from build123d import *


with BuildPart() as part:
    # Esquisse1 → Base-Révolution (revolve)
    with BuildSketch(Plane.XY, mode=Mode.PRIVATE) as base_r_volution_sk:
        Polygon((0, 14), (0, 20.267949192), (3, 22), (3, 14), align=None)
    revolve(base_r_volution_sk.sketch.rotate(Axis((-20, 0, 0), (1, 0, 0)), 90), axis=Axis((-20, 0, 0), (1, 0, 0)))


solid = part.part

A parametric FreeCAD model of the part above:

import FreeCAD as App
import Part
import Sketcher
from FreeCAD import Vector
Q = App.Units.Quantity


def add_polygon(sketch, points):
    """Adds a closed chain of lines whose ends are joined by coincident constraints."""
    first, n = sketch.GeometryCount, len(points)
    for a, b in zip(points, points[1:] + points[:1]):
        sketch.addGeometry(Part.LineSegment(App.Vector(*a, 0), App.Vector(*b, 0)), False)
    for i in range(n):
        sketch.addConstraint(Sketcher.Constraint("Coincident", first + i, 2, first + (i + 1) % n, 1))

doc = App.newDocument("Part")
body = doc.addObject("PartDesign::Body", "Body")

# Sketch on XY plane
sketch1 = body.newObject("Sketcher::SketchObject", "Sketch")
sketch1.AttachmentSupport = (doc.getObject("XY_Plane"), [""])
sketch1.MapMode = "FlatFace"
add_polygon(sketch1, [(0, 20.3), (0, 14), (3, 14), (3, 22)])  # lines 0-3
sketch1.addConstraint([
    Sketcher.Constraint("Vertical", 0),
    Sketcher.Constraint("Horizontal", 1),
    Sketcher.Constraint("Vertical", 2),
    Sketcher.Constraint("PointOnObject", 0, 2, -2),
    Sketcher.Constraint("DistanceX", 1, 1, 1, 2, Q("3 mm")),
    Sketcher.Constraint("DistanceY", 2, 1, 2, 2, Q("8 mm")),
    Sketcher.Constraint("Angle", 3, Q("-150 deg")),
    Sketcher.Constraint("DistanceY", -1, 1, 0, 2, Q("14 mm")),
])
revolution = body.newObject("PartDesign::Revolution", "Revolution")
revolution.Profile = sketch1
revolution.ReferenceAxis = (sketch1, ["H_Axis"])
revolution.Angle = 360

doc.recompute()
